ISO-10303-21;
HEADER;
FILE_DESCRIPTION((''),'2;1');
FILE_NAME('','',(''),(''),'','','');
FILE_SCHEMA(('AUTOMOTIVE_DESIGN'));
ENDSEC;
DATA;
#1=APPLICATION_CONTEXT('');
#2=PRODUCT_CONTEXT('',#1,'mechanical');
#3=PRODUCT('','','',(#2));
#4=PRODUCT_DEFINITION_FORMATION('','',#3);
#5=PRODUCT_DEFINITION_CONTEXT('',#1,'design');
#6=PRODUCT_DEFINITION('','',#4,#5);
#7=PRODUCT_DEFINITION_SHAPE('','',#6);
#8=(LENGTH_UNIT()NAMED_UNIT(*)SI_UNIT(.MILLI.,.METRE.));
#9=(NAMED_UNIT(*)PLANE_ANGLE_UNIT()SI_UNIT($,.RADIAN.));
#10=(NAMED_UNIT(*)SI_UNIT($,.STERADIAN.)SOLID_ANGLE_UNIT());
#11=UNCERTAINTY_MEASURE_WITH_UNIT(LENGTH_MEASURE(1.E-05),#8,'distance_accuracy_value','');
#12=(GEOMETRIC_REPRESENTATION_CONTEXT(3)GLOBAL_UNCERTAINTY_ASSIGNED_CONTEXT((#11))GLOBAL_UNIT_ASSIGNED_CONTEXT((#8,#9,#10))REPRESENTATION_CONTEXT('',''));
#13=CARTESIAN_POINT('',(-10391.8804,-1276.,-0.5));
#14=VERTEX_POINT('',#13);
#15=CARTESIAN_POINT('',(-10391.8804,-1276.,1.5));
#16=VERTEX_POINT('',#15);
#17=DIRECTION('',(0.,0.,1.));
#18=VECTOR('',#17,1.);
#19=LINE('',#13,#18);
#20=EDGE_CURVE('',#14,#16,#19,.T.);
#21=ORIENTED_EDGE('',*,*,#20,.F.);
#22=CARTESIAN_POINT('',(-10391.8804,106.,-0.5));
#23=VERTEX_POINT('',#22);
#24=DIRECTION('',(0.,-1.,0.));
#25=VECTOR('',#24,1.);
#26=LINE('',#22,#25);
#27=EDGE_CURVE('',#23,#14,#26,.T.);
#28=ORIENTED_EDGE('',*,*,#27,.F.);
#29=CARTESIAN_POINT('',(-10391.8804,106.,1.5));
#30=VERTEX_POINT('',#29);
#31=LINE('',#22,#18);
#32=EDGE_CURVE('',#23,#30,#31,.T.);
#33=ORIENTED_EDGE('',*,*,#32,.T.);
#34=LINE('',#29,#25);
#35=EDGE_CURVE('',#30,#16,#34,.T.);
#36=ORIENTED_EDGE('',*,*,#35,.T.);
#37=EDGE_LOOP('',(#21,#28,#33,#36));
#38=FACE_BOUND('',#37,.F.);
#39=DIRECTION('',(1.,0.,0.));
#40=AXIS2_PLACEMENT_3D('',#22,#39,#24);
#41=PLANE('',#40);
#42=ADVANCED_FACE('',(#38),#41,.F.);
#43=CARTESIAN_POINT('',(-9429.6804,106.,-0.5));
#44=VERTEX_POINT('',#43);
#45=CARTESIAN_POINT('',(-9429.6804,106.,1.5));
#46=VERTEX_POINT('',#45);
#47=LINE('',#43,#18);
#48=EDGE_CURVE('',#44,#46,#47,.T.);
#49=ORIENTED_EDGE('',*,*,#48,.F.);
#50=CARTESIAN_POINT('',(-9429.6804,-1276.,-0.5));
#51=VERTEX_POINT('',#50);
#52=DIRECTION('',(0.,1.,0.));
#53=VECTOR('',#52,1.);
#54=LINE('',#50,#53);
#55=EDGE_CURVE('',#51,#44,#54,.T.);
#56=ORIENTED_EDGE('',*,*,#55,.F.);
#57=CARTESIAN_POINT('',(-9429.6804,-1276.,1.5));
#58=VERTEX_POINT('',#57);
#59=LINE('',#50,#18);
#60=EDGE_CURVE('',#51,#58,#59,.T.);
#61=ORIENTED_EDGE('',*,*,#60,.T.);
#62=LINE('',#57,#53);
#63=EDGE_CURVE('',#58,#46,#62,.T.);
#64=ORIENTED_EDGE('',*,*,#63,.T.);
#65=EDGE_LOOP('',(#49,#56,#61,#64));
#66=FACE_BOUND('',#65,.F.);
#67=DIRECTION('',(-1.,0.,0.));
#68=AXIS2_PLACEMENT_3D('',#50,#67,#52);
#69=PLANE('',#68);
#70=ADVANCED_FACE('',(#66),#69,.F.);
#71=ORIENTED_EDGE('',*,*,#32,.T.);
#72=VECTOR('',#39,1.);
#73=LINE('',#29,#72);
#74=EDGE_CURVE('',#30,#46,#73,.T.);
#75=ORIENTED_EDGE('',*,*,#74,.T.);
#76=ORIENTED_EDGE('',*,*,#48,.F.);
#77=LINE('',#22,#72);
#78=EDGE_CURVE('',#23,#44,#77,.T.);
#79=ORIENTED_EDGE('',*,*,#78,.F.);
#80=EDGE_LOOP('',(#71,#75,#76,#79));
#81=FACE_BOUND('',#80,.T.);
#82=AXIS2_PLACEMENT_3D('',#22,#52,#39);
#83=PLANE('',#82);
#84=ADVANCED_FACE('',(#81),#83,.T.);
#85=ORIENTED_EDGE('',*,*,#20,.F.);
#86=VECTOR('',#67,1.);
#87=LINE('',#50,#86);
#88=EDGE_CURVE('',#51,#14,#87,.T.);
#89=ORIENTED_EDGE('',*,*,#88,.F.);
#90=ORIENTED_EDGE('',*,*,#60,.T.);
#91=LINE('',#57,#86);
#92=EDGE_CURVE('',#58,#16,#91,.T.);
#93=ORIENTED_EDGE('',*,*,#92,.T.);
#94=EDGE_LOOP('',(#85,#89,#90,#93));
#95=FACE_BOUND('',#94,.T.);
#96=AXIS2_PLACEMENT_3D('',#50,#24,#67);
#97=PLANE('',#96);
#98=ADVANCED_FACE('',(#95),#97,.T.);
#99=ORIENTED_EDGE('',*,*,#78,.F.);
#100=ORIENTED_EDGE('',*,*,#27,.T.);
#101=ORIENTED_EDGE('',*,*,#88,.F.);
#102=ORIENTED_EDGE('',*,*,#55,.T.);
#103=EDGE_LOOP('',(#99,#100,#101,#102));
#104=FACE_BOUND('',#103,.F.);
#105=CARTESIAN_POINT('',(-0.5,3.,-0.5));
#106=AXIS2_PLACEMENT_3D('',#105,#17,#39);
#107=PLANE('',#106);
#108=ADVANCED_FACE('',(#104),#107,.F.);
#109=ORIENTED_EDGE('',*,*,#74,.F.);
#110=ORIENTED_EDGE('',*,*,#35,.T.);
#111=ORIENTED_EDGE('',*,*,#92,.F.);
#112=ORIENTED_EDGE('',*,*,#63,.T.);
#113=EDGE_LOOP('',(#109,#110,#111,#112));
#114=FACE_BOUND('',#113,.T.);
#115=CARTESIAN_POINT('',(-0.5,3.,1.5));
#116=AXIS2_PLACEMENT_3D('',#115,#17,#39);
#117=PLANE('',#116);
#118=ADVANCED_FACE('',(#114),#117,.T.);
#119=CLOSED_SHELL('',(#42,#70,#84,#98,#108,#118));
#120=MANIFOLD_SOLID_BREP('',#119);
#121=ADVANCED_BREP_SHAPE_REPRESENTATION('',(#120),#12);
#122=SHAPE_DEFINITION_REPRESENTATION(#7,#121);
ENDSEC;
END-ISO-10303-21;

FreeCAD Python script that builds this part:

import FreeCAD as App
import Part
import Sketcher

V = App.Vector
Q = App.Units.Quantity

doc = App.newDocument("Part")
body = doc.addObject("PartDesign::Body", "Body")

# Sketch on XY plane
sketch1 = body.newObject("Sketcher::SketchObject", "Sketch")
sketch1.AttachmentSupport = (doc.getObject("XY_Plane"), [""])
sketch1.MapMode = "FlatFace"
sketch1.AttachmentOffset = App.Placement(V(0, 0, -0.5), App.Rotation())
sketch1.addGeometry(Part.LineSegment(V(-9430, 106, 0), V(-10392, 106, 0)), False)
sketch1.addGeometry(Part.LineSegment(V(-10392, 106, 0), V(-10392, -1276, 0)), False)
sketch1.addGeometry(Part.LineSegment(V(-10392, -1276, 0), V(-9430, -1276, 0)), False)
sketch1.addGeometry(Part.LineSegment(V(-9430, -1276, 0), V(-9430, 106, 0)), False)
sketch1.addConstraint(Sketcher.Constraint("Coincident", 0, 2, 1, 1))
sketch1.addConstraint(Sketcher.Constraint("Coincident", 1, 2, 2, 1))
sketch1.addConstraint(Sketcher.Constraint("Coincident", 2, 2, 3, 1))
sketch1.addConstraint(Sketcher.Constraint("Coincident", 3, 2, 0, 1))
sketch1.addConstraint(Sketcher.Constraint("Horizontal", 0))
sketch1.addConstraint(Sketcher.Constraint("Vertical", 1))
sketch1.addConstraint(Sketcher.Constraint("Horizontal", 2))
sketch1.addConstraint(Sketcher.Constraint("Vertical", 3))
sketch1.addConstraint(Sketcher.Constraint("DistanceY", 1, 2, 1, 1, Q("1382 mm")))
sketch1.addConstraint(Sketcher.Constraint("DistanceX", 0, 2, 0, 1, Q("962.2 mm")))
sketch1.addConstraint(Sketcher.Constraint("DistanceY", -1, 1, 0, 2, Q("106 mm")))
sketch1.addConstraint(Sketcher.Constraint("DistanceX", 0, 2, -1, 1, Q("10391.8804 mm")))
pad1 = body.newObject("PartDesign::Pad", "Pad")
pad1.Profile = sketch1
pad1.Length = 2

doc.recompute()
